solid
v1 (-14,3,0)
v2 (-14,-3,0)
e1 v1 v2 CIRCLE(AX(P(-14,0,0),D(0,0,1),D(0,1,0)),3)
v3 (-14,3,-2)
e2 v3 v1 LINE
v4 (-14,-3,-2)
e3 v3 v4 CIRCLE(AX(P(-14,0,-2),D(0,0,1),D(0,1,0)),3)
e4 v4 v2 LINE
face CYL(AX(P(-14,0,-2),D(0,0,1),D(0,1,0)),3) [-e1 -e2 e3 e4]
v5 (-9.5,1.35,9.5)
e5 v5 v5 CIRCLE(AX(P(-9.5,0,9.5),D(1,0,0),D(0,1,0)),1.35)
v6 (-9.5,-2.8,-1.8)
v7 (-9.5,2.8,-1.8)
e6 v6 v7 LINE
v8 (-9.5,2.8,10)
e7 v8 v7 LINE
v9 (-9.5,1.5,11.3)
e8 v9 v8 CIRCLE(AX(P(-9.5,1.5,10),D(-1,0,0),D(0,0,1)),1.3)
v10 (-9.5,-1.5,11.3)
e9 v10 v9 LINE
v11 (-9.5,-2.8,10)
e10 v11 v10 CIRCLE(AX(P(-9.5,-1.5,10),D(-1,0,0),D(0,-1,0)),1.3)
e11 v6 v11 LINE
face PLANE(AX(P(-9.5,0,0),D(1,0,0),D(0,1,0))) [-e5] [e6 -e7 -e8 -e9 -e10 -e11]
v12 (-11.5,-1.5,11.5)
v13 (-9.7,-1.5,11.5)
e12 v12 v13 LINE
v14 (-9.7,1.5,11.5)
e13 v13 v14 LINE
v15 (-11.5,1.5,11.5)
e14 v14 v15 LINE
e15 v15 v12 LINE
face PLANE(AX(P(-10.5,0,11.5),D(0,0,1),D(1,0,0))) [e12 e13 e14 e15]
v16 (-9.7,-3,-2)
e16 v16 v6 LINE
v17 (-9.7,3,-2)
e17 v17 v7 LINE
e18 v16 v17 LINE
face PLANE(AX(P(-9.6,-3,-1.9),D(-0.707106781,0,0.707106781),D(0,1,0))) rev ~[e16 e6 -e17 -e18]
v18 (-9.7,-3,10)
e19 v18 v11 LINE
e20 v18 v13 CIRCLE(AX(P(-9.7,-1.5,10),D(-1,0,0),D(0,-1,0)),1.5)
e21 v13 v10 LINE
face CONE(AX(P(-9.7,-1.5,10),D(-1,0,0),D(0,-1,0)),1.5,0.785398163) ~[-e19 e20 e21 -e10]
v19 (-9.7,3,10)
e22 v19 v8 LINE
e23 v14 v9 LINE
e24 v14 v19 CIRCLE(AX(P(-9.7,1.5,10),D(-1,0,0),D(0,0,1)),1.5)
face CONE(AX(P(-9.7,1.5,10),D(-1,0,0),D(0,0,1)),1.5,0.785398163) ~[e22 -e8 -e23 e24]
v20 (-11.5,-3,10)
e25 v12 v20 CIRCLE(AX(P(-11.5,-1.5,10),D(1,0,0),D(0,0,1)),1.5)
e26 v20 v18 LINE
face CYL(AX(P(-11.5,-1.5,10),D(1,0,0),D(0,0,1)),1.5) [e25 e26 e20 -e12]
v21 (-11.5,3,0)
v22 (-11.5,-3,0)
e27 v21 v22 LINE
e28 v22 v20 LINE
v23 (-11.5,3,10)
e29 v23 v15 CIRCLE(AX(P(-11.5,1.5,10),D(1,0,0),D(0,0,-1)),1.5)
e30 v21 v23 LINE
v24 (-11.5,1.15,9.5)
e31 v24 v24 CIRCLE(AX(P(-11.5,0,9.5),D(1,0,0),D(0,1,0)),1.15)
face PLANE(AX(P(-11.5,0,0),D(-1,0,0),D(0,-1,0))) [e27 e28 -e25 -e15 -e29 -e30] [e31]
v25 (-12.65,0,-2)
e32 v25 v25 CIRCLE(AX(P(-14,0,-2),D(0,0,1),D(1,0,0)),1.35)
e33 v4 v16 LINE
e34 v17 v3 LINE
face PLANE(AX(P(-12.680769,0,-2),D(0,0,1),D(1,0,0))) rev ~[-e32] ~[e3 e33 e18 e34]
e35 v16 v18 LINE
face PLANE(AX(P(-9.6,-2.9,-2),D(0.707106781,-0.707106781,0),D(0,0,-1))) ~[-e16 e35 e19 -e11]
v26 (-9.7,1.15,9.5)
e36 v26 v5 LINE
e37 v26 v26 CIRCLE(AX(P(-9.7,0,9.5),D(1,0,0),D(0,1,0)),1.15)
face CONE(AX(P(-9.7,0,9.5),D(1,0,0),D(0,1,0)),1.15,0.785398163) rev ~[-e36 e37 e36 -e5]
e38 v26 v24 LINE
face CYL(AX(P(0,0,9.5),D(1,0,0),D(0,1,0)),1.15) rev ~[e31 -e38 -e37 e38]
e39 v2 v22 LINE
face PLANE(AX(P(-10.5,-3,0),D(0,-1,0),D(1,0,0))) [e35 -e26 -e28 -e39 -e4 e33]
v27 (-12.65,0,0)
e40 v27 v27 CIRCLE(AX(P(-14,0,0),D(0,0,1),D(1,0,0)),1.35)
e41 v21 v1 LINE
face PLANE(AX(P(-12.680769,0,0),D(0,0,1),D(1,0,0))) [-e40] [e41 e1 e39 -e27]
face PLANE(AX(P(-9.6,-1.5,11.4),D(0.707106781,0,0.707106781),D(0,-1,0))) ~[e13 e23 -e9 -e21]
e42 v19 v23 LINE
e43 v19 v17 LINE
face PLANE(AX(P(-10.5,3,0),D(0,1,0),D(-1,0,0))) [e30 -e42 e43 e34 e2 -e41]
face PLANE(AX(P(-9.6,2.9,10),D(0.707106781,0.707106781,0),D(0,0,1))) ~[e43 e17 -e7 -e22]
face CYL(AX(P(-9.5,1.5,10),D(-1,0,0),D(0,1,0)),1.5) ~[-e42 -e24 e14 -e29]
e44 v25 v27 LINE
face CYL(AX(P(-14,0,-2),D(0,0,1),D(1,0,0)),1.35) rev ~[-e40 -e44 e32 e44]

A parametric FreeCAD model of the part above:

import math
import FreeCAD as App
import Part
import Sketcher


def edges_at(feature, points):
    """Names of the edges that pass closest to the given points."""
    edges = feature.Shape.Edges
    near = lambda p: min(range(len(edges)), key=lambda i: edges[i].distToShape(Part.Vertex(*p))[0])
    return sorted({f"Edge{near(p) + 1}" for p in points})


def add_polygon(sketch, points):
    """Adds a closed chain of lines whose ends are joined by coincident constraints."""
    first, n = sketch.GeometryCount, len(points)
    for a, b in zip(points, points[1:] + points[:1]):
        sketch.addGeometry(Part.LineSegment(App.Vector(*a, 0), App.Vector(*b, 0)), False)
    for i in range(n):
        sketch.addConstraint(Sketcher.Constraint("Coincident", first + i, 2, first + (i + 1) % n, 1))

doc = App.newDocument("Part")
body = doc.addObject("PartDesign::Body", "Body")

sketch1 = body.newObject("Sketcher::SketchObject", "Sketch")
sketch1.AttachmentSupport = (doc.getObject("XY_Plane"), [""])
sketch1.MapMode = "FlatFace"
sketch1.addGeometry([
    Part.LineSegment(App.Vector(-9.5, -3, 0), App.Vector(-9.5, 3, 0)),
    Part.LineSegment(App.Vector(-9.5, 3, 0), App.Vector(-14, 3, 0)),
    Part.ArcOfCircle(Part.Circle(App.Vector(-14, 0, 0), App.Vector(0, 0, 1), 3), math.radians(90), math.radians(270)),
    Part.LineSegment(App.Vector(-14, -3, 0), App.Vector(-9.5, -3, 0)),
    Part.Circle(App.Vector(-14, 0, 0), App.Vector(0, 0, 1), 1.35),
], False)
sketch1.addConstraint([
    Sketcher.Constraint("Coincident", 0, 2, 1, 1),
    Sketcher.Constraint("Tangent", 1, 2, 2, 1),
    Sketcher.Constraint("Tangent", 2, 2, 3, 1),
    Sketcher.Constraint("Coincident", 3, 2, 0, 1),
    Sketcher.Constraint("Vertical", 0),
    Sketcher.Constraint("Horizontal", 1),
    Sketcher.Constraint("Horizontal", 3),
    Sketcher.Constraint("Coincident", 4, 3, 2, 3),
    Sketcher.Constraint("PointOnObject", 2, 3, -1),
    Sketcher.Constraint("Radius", 2, 3.0),
    Sketcher.Constraint("Diameter", 4, 2.7),
    Sketcher.Constraint("DistanceX", 1, 2, 1, 1, 4.5),
    Sketcher.Constraint("DistanceX", 2, 3, -1, 1, 14.0),
])

sketch2 = body.newObject("Sketcher::SketchObject", "Sketch001")
sketch2.AttachmentSupport = (doc.getObject("XZ_Plane"), [""])
sketch2.MapMode = "FlatFace"
sketch2.addGeometry(Part.LineSegment(App.Vector(0, -2, 0), App.Vector(0, 0, 0)), False)
sketch2.addConstraint([
    Sketcher.Constraint("Vertical", 0),
    Sketcher.Constraint("Coincident", 0, 2, -1, 1),
    Sketcher.Constraint("DistanceY", 0, 1, 0, 2, 2.0),
])
doc.recompute()

additivepipe = body.newObject("PartDesign::AdditivePipe", "AdditivePipe")
additivepipe.Profile = sketch1
additivepipe.Spine = (sketch2, ["Edge1"])

sketch3 = body.newObject("Sketcher::SketchObject", "Sketch002")
sketch3.AttachmentSupport = (doc.getObject("XY_Plane"), [""])
sketch3.MapMode = "FlatFace"
add_polygon(sketch3, [(-11.5, 3), (-11.5, -3), (-9.5, -3), (-9.5, 3)])
sketch3.addConstraint([
    Sketcher.Constraint("Vertical", 0),
    Sketcher.Constraint("Horizontal", 1),
    Sketcher.Constraint("Vertical", 2),
    Sketcher.Constraint("Horizontal", 3),
    Sketcher.Constraint("DistanceX", 1, 1, 1, 2, 2.0),
    Sketcher.Constraint("DistanceY", 0, 2, 0, 1, 6.0),
    Sketcher.Constraint("DistanceY", 0, 2, -1, 1, 3.0),
    Sketcher.Constraint("DistanceX", 0, 2, -1, 1, 11.5),
])

sketch4 = body.newObject("Sketcher::SketchObject", "Sketch003")
sketch4.AttachmentSupport = (doc.getObject("XZ_Plane"), [""])
sketch4.MapMode = "FlatFace"
sketch4.addGeometry(Part.LineSegment(App.Vector(0, 0, 0), App.Vector(0, 11.5, 0)), False)
sketch4.addConstraint([
    Sketcher.Constraint("Vertical", 0),
    Sketcher.Constraint("Coincident", 0, 1, -1, 1),
    Sketcher.Constraint("DistanceY", 0, 1, 0, 2, 11.5),
])
doc.recompute()

additivepipe2 = body.newObject("PartDesign::AdditivePipe", "AdditivePipe001")
additivepipe2.Profile = sketch3
additivepipe2.Spine = (sketch4, ["Edge1"])

sketch5 = body.newObject("Sketcher::SketchObject", "Sketch004")
sketch5.AttachmentSupport = (doc.getObject("YZ_Plane"), [""])
sketch5.MapMode = "FlatFace"
sketch5.addGeometry(Part.Circle(App.Vector(0, 9.5, 0), App.Vector(0, 0, 1), 1.15), False)
sketch5.addConstraint([
    Sketcher.Constraint("PointOnObject", 0, 3, -2),
    Sketcher.Constraint("Diameter", 0, 2.3),
    Sketcher.Constraint("DistanceY", -1, 1, 0, 3, 9.5),
])
pocket1 = body.newObject("PartDesign::Pocket", "Pocket")
pocket1.Profile = sketch5
pocket1.Type = "ThroughAll"
doc.recompute()

fillet = body.newObject("PartDesign::Fillet", "Fillet")
fillet.Base = (pocket1, edges_at(pocket1, [(-10.5, 3, 11.5), (-10.5, -3, 11.5)]))
fillet.Radius = 1.5
doc.recompute()

chamfer = body.newObject("PartDesign::Chamfer", "Chamfer")
chamfer.Base = (fillet, edges_at(fillet, [
    (-9.5, -3, 4),
    (-9.5, -2.561, 11.061),
    (-9.5, 0, -2),
    (-9.5, 0, 11.5),
    (-9.5, 3, 4),
    (-9.5, 2.561, 11.061),
    (-9.5, -1.15, 9.5),
]))
chamfer.Size = 0.2

doc.recompute()
